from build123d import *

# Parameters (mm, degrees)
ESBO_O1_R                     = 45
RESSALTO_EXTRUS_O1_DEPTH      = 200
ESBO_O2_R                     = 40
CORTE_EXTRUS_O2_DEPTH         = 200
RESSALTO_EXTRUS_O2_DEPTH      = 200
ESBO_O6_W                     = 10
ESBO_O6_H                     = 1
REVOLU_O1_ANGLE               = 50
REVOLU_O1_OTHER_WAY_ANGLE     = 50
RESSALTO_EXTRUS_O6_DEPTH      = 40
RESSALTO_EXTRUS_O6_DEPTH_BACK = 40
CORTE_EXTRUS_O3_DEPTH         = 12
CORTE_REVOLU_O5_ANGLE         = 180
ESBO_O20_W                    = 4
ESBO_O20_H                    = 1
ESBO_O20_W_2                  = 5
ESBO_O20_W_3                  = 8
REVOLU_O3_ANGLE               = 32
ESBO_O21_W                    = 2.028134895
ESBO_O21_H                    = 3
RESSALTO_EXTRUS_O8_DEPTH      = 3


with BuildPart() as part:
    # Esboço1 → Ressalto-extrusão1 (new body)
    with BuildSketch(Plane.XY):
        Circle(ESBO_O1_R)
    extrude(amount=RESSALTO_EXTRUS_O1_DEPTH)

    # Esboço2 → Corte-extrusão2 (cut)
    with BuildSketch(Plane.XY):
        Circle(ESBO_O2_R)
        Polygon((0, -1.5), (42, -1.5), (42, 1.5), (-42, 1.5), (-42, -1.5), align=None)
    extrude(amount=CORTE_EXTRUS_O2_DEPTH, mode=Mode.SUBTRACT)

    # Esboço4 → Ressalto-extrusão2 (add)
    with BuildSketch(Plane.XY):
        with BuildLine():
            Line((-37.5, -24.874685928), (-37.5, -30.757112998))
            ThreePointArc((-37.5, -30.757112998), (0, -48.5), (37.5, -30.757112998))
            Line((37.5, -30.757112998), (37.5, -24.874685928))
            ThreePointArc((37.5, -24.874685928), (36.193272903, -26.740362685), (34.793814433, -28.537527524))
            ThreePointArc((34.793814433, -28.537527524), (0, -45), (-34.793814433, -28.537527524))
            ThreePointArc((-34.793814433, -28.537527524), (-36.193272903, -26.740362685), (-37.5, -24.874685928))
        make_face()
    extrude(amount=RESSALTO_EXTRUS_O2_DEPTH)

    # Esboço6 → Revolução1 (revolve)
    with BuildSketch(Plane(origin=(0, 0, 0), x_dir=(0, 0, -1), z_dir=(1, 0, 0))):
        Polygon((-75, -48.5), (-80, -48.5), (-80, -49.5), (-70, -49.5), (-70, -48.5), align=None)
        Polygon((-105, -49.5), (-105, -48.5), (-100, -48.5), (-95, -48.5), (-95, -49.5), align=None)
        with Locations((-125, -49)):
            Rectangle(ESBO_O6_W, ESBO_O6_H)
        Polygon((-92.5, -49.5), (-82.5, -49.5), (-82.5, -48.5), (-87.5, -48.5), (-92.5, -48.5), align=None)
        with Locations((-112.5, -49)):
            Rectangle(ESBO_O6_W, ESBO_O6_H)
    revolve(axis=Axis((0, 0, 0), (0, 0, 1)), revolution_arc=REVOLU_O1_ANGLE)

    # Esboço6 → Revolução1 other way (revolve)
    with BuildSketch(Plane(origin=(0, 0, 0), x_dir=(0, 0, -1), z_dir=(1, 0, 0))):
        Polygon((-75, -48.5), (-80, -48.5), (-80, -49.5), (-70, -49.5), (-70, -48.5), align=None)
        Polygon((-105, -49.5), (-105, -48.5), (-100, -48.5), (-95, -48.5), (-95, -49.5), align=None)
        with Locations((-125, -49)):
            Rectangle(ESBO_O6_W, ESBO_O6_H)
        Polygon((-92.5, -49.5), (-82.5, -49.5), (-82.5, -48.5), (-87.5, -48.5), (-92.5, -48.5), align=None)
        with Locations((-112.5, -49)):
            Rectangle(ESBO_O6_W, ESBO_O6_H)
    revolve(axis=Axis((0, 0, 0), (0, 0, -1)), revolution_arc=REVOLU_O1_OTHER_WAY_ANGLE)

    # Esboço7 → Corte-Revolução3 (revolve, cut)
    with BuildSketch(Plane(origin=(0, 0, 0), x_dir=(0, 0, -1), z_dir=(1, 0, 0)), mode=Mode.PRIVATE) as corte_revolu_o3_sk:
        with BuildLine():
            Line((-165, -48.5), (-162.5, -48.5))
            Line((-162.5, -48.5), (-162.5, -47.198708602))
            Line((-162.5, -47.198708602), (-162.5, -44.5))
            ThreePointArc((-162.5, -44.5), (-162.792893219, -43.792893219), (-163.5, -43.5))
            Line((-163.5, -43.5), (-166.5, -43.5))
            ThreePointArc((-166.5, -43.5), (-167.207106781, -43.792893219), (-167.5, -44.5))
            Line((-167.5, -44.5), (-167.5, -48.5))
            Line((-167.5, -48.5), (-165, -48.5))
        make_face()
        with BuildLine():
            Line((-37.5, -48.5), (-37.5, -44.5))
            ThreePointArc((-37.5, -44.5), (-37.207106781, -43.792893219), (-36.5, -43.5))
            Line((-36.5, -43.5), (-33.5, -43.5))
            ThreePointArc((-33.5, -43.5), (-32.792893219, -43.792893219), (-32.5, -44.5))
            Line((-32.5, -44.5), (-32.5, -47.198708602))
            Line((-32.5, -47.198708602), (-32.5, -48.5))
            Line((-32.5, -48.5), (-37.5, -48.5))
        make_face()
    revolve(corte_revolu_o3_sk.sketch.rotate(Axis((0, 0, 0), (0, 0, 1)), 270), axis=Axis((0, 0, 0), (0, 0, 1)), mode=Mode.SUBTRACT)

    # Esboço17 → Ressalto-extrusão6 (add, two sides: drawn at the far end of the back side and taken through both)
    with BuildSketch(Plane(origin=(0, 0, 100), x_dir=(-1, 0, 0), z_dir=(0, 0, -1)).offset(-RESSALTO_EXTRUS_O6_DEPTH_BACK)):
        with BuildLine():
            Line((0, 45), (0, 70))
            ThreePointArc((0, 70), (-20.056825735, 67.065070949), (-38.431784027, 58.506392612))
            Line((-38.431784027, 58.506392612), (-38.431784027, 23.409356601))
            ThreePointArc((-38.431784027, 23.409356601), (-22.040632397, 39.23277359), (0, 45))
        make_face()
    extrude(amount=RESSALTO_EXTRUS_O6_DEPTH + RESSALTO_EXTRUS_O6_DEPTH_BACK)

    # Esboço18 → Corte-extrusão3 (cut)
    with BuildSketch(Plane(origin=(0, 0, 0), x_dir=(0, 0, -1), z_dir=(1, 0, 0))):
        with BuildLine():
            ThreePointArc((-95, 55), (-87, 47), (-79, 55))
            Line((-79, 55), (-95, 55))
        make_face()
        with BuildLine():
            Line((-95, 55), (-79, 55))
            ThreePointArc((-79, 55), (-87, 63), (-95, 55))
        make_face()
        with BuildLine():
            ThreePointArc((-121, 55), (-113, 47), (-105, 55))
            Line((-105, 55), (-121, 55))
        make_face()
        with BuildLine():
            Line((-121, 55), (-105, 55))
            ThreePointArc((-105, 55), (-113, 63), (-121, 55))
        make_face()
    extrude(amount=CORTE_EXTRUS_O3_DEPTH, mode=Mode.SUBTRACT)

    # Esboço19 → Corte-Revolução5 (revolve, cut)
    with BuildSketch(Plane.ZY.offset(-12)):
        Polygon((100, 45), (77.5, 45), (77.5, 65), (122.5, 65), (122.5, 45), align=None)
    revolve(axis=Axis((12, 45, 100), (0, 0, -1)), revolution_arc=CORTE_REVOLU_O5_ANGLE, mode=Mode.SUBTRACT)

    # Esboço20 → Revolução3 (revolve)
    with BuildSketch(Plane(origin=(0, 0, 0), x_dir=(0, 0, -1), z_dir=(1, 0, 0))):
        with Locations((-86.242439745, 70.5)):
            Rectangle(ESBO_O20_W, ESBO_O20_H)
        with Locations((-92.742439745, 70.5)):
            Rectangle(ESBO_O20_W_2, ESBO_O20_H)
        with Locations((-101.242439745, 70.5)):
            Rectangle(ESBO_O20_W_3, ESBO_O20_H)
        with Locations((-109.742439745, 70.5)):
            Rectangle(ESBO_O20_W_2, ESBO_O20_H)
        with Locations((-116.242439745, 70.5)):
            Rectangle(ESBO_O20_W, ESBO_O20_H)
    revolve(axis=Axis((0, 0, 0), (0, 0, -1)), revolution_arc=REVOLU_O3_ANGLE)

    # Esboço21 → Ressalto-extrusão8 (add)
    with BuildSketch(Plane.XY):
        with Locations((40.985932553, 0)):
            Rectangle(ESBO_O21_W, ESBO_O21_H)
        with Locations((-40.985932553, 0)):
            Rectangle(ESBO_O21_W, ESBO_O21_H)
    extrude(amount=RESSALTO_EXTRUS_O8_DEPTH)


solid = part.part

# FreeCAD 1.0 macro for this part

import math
import FreeCAD as App
import Part
import Sketcher
from FreeCAD import Vector


def add_polygon(sketch, points):
    """Adds a closed chain of lines whose ends are joined by coincident constraints."""
    first, n = sketch.GeometryCount, len(points)
    for a, b in zip(points, points[1:] + points[:1]):
        sketch.addGeometry(Part.LineSegment(App.Vector(*a, 0), App.Vector(*b, 0)), False)
    for i in range(n):
        sketch.addConstraint(Sketcher.Constraint("Coincident", first + i, 2, first + (i + 1) % n, 1))

doc = App.newDocument("Part")
body = doc.addObject("PartDesign::Body", "Body")

sketch1 = doc.addObject("Sketcher::SketchObject", "Sketch")
body.addObject(sketch1)
sketch1.AttachmentSupport = (doc.XY_Plane, [""])
sketch1.MapMode = "FlatFace"
sketch1.addGeometry(Part.Circle(Vector(0, 0, 0), Vector(0, 0, 1), 45), False)
sketch1.addConstraint(Sketcher.Constraint("Coincident", 0, 3, -1, 1))
sketch1.addConstraint(Sketcher.Constraint("Diameter", 0, 90.0))
pad1 = doc.addObject("PartDesign::Pad", "Pad")
body.addObject(pad1)
pad1.Profile = sketch1
pad1.Length = 200

sketch2 = doc.addObject("Sketcher::SketchObject", "Sketch001")
body.addObject(sketch2)
sketch2.AttachmentSupport = (doc.XY_Plane, [""])
sketch2.MapMode = "FlatFace"
sketch2.addGeometry(Part.LineSegment(Vector(39.971865, -1.5, 0), Vector(42, -1.5, 0)), False)
sketch2.addGeometry(Part.LineSegment(Vector(42, -1.5, 0), Vector(42, 1.5, 0)), False)
sketch2.addGeometry(Part.LineSegment(Vector(42, 1.5, 0), Vector(39.971865, 1.5, 0)), False)
sketch2.addGeometry(Part.ArcOfCircle(Part.Circle(Vector(0, 0, 0), Vector(0, 0, 1), 40), math.radians(2.149096), math.radians(177.850904)), False)
sketch2.addGeometry(Part.LineSegment(Vector(-39.971865, 1.5, 0), Vector(-42, 1.5, 0)), False)
sketch2.addGeometry(Part.LineSegment(Vector(-42, 1.5, 0), Vector(-42, -1.5, 0)), False)
sketch2.addGeometry(Part.LineSegment(Vector(-42, -1.5, 0), Vector(-39.971865, -1.5, 0)), False)
sketch2.addGeometry(Part.ArcOfCircle(Part.Circle(Vector(0, 0, 0), Vector(0, 0, 1), 40), math.radians(-177.850904), math.radians(-2.149096)), False)
sketch2.addConstraint(Sketcher.Constraint("Coincident", 0, 2, 1, 1))
sketch2.addConstraint(Sketcher.Constraint("Coincident", 1, 2, 2, 1))
sketch2.addConstraint(Sketcher.Constraint("Coincident", 2, 2, 3, 1))
sketch2.addConstraint(Sketcher.Constraint("Coincident", 3, 2, 4, 1))
sketch2.addConstraint(Sketcher.Constraint("Coincident", 4, 2, 5, 1))
sketch2.addConstraint(Sketcher.Constraint("Coincident", 5, 2, 6, 1))
sketch2.addConstraint(Sketcher.Constraint("Coincident", 6, 2, 7, 1))
sketch2.addConstraint(Sketcher.Constraint("Coincident", 7, 2, 0, 1))
sketch2.addConstraint(Sketcher.Constraint("Horizontal", 0))
sketch2.addConstraint(Sketcher.Constraint("Vertical", 1))
sketch2.addConstraint(Sketcher.Constraint("Horizontal", 2))
sketch2.addConstraint(Sketcher.Constraint("Horizontal", 4))
sketch2.addConstraint(Sketcher.Constraint("Vertical", 5))
sketch2.addConstraint(Sketcher.Constraint("Horizontal", 6))
sketch2.addConstraint(Sketcher.Constraint("Coincident", 3, 3, -1, 1))
sketch2.addConstraint(Sketcher.Constraint("Coincident", 7, 3, -1, 1))
sketch2.addConstraint(Sketcher.Constraint("Equal", 3, 7))
sketch2.addConstraint(Sketcher.Constraint("Symmetric", 0, 2, 4, 2, -1, 1))
sketch2.addConstraint(Sketcher.Constraint("Horizontal", 2, 2, 3, 2))
sketch2.addConstraint(Sketcher.Constraint("Horizontal", 0, 2, 5, 2))
sketch2.addConstraint(Sketcher.Constraint("Radius", 3, 40.0))
sketch2.addConstraint(Sketcher.Constraint("DistanceY", 1, 1, 1, 2, 3.0))
sketch2.addConstraint(Sketcher.Constraint("DistanceX", -1, 1, 0, 2, 42.0))
pocket1 = doc.addObject("PartDesign::Pocket", "Pocket")
body.addObject(pocket1)
pocket1.Profile = sketch2
pocket1.Length = 200
pocket1.Reversed = True

sketch3 = doc.addObject("Sketcher::SketchObject", "Sketch002")
body.addObject(sketch3)
sketch3.AttachmentSupport = (doc.XY_Plane, [""])
sketch3.MapMode = "FlatFace"
sketch3.addGeometry(Part.LineSegment(Vector(-37.5, -24.874686, 0), Vector(-37.5, -30.757113, 0)), False)
sketch3.addGeometry(Part.ArcOfCircle(Part.Circle(Vector(0, 0, 0), Vector(0, 0, 1), 48.5), math.radians(-140.64175), math.radians(-39.35825)), False)
sketch3.addGeometry(Part.LineSegment(Vector(37.5, -30.757113, 0), Vector(37.5, -24.874686, 0)), False)
sketch3.addGeometry(Part.ArcOfCircle(Part.Circle(Vector(0, 0, 0), Vector(0, 0, 1), 45), math.radians(-39.35825), math.radians(-33.55731)), False)
sketch3.addGeometry(Part.ArcOfCircle(Part.Circle(Vector(0, 0, 0), Vector(0, 0, 1), 45), math.radians(-140.64175), math.radians(-39.35825)), False)
sketch3.addGeometry(Part.ArcOfCircle(Part.Circle(Vector(0, 0, 0), Vector(0, 0, 1), 45), math.radians(-146.44269), math.radians(-140.64175)), False)
sketch3.addConstraint(Sketcher.Constraint("Coincident", 0, 2, 1, 1))
sketch3.addConstraint(Sketcher.Constraint("Coincident", 1, 2, 2, 1))
sketch3.addConstraint(Sketcher.Constraint("Coincident", 2, 2, 3, 2))
sketch3.addConstraint(Sketcher.Constraint("Tangent", 3, 1, 4, 2))
sketch3.addConstraint(Sketcher.Constraint("Tangent", 4, 1, 5, 2))
sketch3.addConstraint(Sketcher.Constraint("Coincident", 5, 1, 0, 1))
sketch3.addConstraint(Sketcher.Constraint("Vertical", 0))
sketch3.addConstraint(Sketcher.Constraint("Vertical", 2))
sketch3.addConstraint(Sketcher.Constraint("Coincident", 1, 3, -1, 1))
sketch3.addConstraint(Sketcher.Constraint("Coincident", 3, 3, -1, 1))
sketch3.addConstraint(Sketcher.Constraint("Coincident", 5, 3, -1, 1))
sketch3.addConstraint(Sketcher.Constraint("Horizontal", 0, 2, 1, 2))
sketch3.addConstraint(Sketcher.Constraint("Horizontal", 3, 1, 4, 1))
sketch3.addConstraint(Sketcher.Constraint("Radius", 3, 45.0))
sketch3.addConstraint(Sketcher.Constraint("Radius", 1, 48.5))
sketch3.addConstraint(Sketcher.Constraint("DistanceX", 0, 2, 1, 2, 75.0))
sketch3.addConstraint(Sketcher.Constraint("DistanceY", 3, 1, 2, 2, 3.662842))
pad2 = doc.addObject("PartDesign::Pad", "Pad001")
body.addObject(pad2)
pad2.Profile = sketch3
pad2.Length = 200

sketch4 = doc.addObject("Sketcher::SketchObject", "Sketch003")
body.addObject(sketch4)
sketch4.AttachmentSupport = (doc.YZ_Plane, [""])
sketch4.MapMode = "FlatFace"
add_polygon(sketch4, [(-48.5, 80), (-49.5, 80), (-49.5, 70), (-48.5, 70)])
add_polygon(sketch4, [(-48.5, 105), (-49.5, 105), (-49.5, 95), (-48.5, 95)])
add_polygon(sketch4, [(-48.5, 130), (-49.5, 130), (-49.5, 120), (-48.5, 120)])
add_polygon(sketch4, [(-49.5, 92.5), (-49.5, 82.5), (-48.5, 82.5), (-48.5, 92.5)])
add_polygon(sketch4, [(-48.5, 117.5), (-49.5, 117.5), (-49.5, 107.5), (-48.5, 107.5)])
sketch4.addConstraint(Sketcher.Constraint("Horizontal", 0))
sketch4.addConstraint(Sketcher.Constraint("Vertical", 1))
sketch4.addConstraint(Sketcher.Constraint("Horizontal", 2))
sketch4.addConstraint(Sketcher.Constraint("Vertical", 3))
sketch4.addConstraint(Sketcher.Constraint("Horizontal", 4))
sketch4.addConstraint(Sketcher.Constraint("Vertical", 5))
sketch4.addConstraint(Sketcher.Constraint("Horizontal", 6))
sketch4.addConstraint(Sketcher.Constraint("Vertical", 7))
sketch4.addConstraint(Sketcher.Constraint("Horizontal", 8))
sketch4.addConstraint(Sketcher.Constraint("Vertical", 9))
sketch4.addConstraint(Sketcher.Constraint("Horizontal", 10))
sketch4.addConstraint(Sketcher.Constraint("Vertical", 11))
sketch4.addConstraint(Sketcher.Constraint("Vertical", 12))
sketch4.addConstraint(Sketcher.Constraint("Horizontal", 13))
sketch4.addConstraint(Sketcher.Constraint("Vertical", 14))
sketch4.addConstraint(Sketcher.Constraint("Horizontal", 15))
sketch4.addConstraint(Sketcher.Constraint("Horizontal", 16))
sketch4.addConstraint(Sketcher.Constraint("Vertical", 17))
sketch4.addConstraint(Sketcher.Constraint("Horizontal", 18))
sketch4.addConstraint(Sketcher.Constraint("Vertical", 19))
sketch4.addConstraint(Sketcher.Constraint("Vertical", 1, 2, 4, 2))
sketch4.addConstraint(Sketcher.Constraint("Vertical", 3, 2, 6, 2))
sketch4.addConstraint(Sketcher.Constraint("Vertical", 5, 2, 8, 2))
sketch4.addConstraint(Sketcher.Constraint("Vertical", 7, 2, 10, 2))
sketch4.addConstraint(Sketcher.Constraint("Vertical", 9, 2, 12, 2))
sketch4.addConstraint(Sketcher.Constraint("Vertical", 11, 2, 13, 2))
sketch4.addConstraint(Sketcher.Constraint("Vertical", 15, 2, 16, 2))
sketch4.addConstraint(Sketcher.Constraint("Vertical", 14, 2, 18, 2))
sketch4.addConstraint(Sketcher.Constraint("Equal", 3, 5))
sketch4.addConstraint(Sketcher.Constraint("Equal", 7, 9))
sketch4.addConstraint(Sketcher.Constraint("Equal", 11, 12))
sketch4.addConstraint(Sketcher.Constraint("Equal", 14, 17))
sketch4.addConstraint(Sketcher.Constraint("DistanceX", 0, 2, 0, 1, 1.0))
sketch4.addConstraint(Sketcher.Constraint("DistanceY", 1, 2, 1, 1, 10.0))
sketch4.addConstraint(Sketcher.Constraint("DistanceY", -1, 1, 0, 2, 80.0))
sketch4.addConstraint(Sketcher.Constraint("DistanceY", -1, 1, 4, 2, 105.0))
sketch4.addConstraint(Sketcher.Constraint("DistanceY", -1, 1, 8, 2, 130.0))
sketch4.addConstraint(Sketcher.Constraint("DistanceX", 0, 2, -1, 1, 49.5))
sketch4.addConstraint(Sketcher.Constraint("DistanceY", -1, 1, 12, 2, 82.5))
sketch4.addConstraint(Sketcher.Constraint("DistanceY", -1, 1, 16, 2, 117.5))
revolution = doc.addObject("PartDesign::Revolution", "Revolution")
body.addObject(revolution)
revolution.Profile = sketch4
revolution.ReferenceAxis = (sketch4, ["V_Axis"])
revolution.Angle = 50

sketch5 = doc.addObject("Sketcher::SketchObject", "Sketch004")
body.addObject(sketch5)
sketch5.AttachmentSupport = (doc.YZ_Plane, [""])
sketch5.MapMode = "FlatFace"
add_polygon(sketch5, [(-48.5, 80), (-49.5, 80), (-49.5, 70), (-48.5, 70)])
add_polygon(sketch5, [(-48.5, 105), (-49.5, 105), (-49.5, 95), (-48.5, 95)])
add_polygon(sketch5, [(-48.5, 130), (-49.5, 130), (-49.5, 120), (-48.5, 120)])
add_polygon(sketch5, [(-49.5, 92.5), (-49.5, 82.5), (-48.5, 82.5), (-48.5, 92.5)])
add_polygon(sketch5, [(-48.5, 117.5), (-49.5, 117.5), (-49.5, 107.5), (-48.5, 107.5)])
sketch5.addConstraint(Sketcher.Constraint("Horizontal", 0))
sketch5.addConstraint(Sketcher.Constraint("Vertical", 1))
sketch5.addConstraint(Sketcher.Constraint("Horizontal", 2))
sketch5.addConstraint(Sketcher.Constraint("Vertical", 3))
sketch5.addConstraint(Sketcher.Constraint("Horizontal", 4))
sketch5.addConstraint(Sketcher.Constraint("Vertical", 5))
sketch5.addConstraint(Sketcher.Constraint("Horizontal", 6))
sketch5.addConstraint(Sketcher.Constraint("Vertical", 7))
sketch5.addConstraint(Sketcher.Constraint("Horizontal", 8))
sketch5.addConstraint(Sketcher.Constraint("Vertical", 9))
sketch5.addConstraint(Sketcher.Constraint("Horizontal", 10))
sketch5.addConstraint(Sketcher.Constraint("Vertical", 11))
sketch5.addConstraint(Sketcher.Constraint("Vertical", 12))
sketch5.addConstraint(Sketcher.Constraint("Horizontal", 13))
sketch5.addConstraint(Sketcher.Constraint("Vertical", 14))
sketch5.addConstraint(Sketcher.Constraint("Horizontal", 15))
sketch5.addConstraint(Sketcher.Constraint("Horizontal", 16))
sketch5.addConstraint(Sketcher.Constraint("Vertical", 17))
sketch5.addConstraint(Sketcher.Constraint("Horizontal", 18))
sketch5.addConstraint(Sketcher.Constraint("Vertical", 19))
sketch5.addConstraint(Sketcher.Constraint("Vertical", 1, 2, 4, 2))
sketch5.addConstraint(Sketcher.Constraint("Vertical", 3, 2, 6, 2))
sketch5.addConstraint(Sketcher.Constraint("Vertical", 5, 2, 8, 2))
sketch5.addConstraint(Sketcher.Constraint("Vertical", 7, 2, 10, 2))
sketch5.addConstraint(Sketcher.Constraint("Vertical", 9, 2, 12, 2))
sketch5.addConstraint(Sketcher.Constraint("Vertical", 11, 2, 13, 2))
sketch5.addConstraint(Sketcher.Constraint("Vertical", 15, 2, 16, 2))
sketch5.addConstraint(Sketcher.Constraint("Vertical", 14, 2, 18, 2))
sketch5.addConstraint(Sketcher.Constraint("Equal", 3, 5))
sketch5.addConstraint(Sketcher.Constraint("Equal", 7, 9))
sketch5.addConstraint(Sketcher.Constraint("Equal", 11, 12))
sketch5.addConstraint(Sketcher.Constraint("Equal", 14, 17))
sketch5.addConstraint(Sketcher.Constraint("DistanceX", 0, 2, 0, 1, 1.0))
sketch5.addConstraint(Sketcher.Constraint("DistanceY", 1, 2, 1, 1, 10.0))
sketch5.addConstraint(Sketcher.Constraint("DistanceY", -1, 1, 0, 2, 80.0))
sketch5.addConstraint(Sketcher.Constraint("DistanceY", -1, 1, 4, 2, 105.0))
sketch5.addConstraint(Sketcher.Constraint("DistanceY", -1, 1, 8, 2, 130.0))
sketch5.addConstraint(Sketcher.Constraint("DistanceX", 0, 2, -1, 1, 49.5))
sketch5.addConstraint(Sketcher.Constraint("DistanceY", -1, 1, 12, 2, 82.5))
sketch5.addConstraint(Sketcher.Constraint("DistanceY", -1, 1, 16, 2, 117.5))
revolution2 = doc.addObject("PartDesign::Revolution", "Revolution001")
body.addObject(revolution2)
revolution2.Profile = sketch5
revolution2.ReferenceAxis = (sketch5, ["V_Axis"])
revolution2.Angle = 50
revolution2.Reversed = True

sketch6 = doc.addObject("Sketcher::SketchObject", "Sketch005")
body.addObject(sketch6)
sketch6.AttachmentSupport = (doc.YZ_Plane, [""])
sketch6.MapMode = "FlatFace"
sketch6.addGeometry(Part.LineSegment(Vector(-48.5, 162.5, 0), Vector(-44.5, 162.5, 0)), False)
sketch6.addGeometry(Part.ArcOfCircle(Part.Circle(Vector(-44.5, 163.5, 0), Vector(0, 0, 1), 1), math.radians(-90), math.radians(0)), False)
sketch6.addGeometry(Part.LineSegment(Vector(-43.5, 163.5, 0), Vector(-43.5, 166.5, 0)), False)
sketch6.addGeometry(Part.ArcOfCircle(Part.Circle(Vector(-44.5, 166.5, 0), Vector(0, 0, 1), 1), math.radians(0), math.radians(90)), False)
sketch6.addGeometry(Part.LineSegment(Vector(-44.5, 167.5, 0), Vector(-48.5, 167.5, 0)), False)
sketch6.addGeometry(Part.LineSegment(Vector(-48.5, 167.5, 0), Vector(-48.5, 162.5, 0)), False)
sketch6.addGeometry(Part.LineSegment(Vector(-44.5, 37.5, 0), Vector(-48.5, 37.5, 0)), False)
sketch6.addGeometry(Part.LineSegment(Vector(-48.5, 37.5, 0), Vector(-48.5, 32.5, 0)), False)
sketch6.addGeometry(Part.LineSegment(Vector(-48.5, 32.5, 0), Vector(-44.5, 32.5, 0)), False)
sketch6.addGeometry(Part.ArcOfCircle(Part.Circle(Vector(-44.5, 33.5, 0), Vector(0, 0, 1), 1), math.radians(-90), math.radians(0)), False)
sketch6.addGeometry(Part.LineSegment(Vector(-43.5, 33.5, 0), Vector(-43.5, 36.5, 0)), False)
sketch6.addGeometry(Part.ArcOfCircle(Part.Circle(Vector(-44.5, 36.5, 0), Vector(0, 0, 1), 1), math.radians(0), math.radians(90)), False)
sketch6.addConstraint(Sketcher.Constraint("Tangent", 0, 2, 1, 1))
sketch6.addConstraint(Sketcher.Constraint("Tangent", 1, 2, 2, 1))
sketch6.addConstraint(Sketcher.Constraint("Tangent", 2, 2, 3, 1))
sketch6.addConstraint(Sketcher.Constraint("Tangent", 3, 2, 4, 1))
sketch6.addConstraint(Sketcher.Constraint("Coincident", 4, 2, 5, 1))
sketch6.addConstraint(Sketcher.Constraint("Coincident", 5, 2, 0, 1))
sketch6.addConstraint(Sketcher.Constraint("Coincident", 6, 2, 7, 1))
sketch6.addConstraint(Sketcher.Constraint("Coincident", 7, 2, 8, 1))
sketch6.addConstraint(Sketcher.Constraint("Tangent", 8, 2, 9, 1))
sketch6.addConstraint(Sketcher.Constraint("Tangent", 9, 2, 10, 1))
sketch6.addConstraint(Sketcher.Constraint("Tangent", 10, 2, 11, 1))
sketch6.addConstraint(Sketcher.Constraint("Tangent", 11, 2, 6, 1))
sketch6.addConstraint(Sketcher.Constraint("Horizontal", 0))
sketch6.addConstraint(Sketcher.Constraint("Vertical", 2))
sketch6.addConstraint(Sketcher.Constraint("Horizontal", 4))
sketch6.addConstraint(Sketcher.Constraint("Vertical", 5))
sketch6.addConstraint(Sketcher.Constraint("Horizontal", 6))
sketch6.addConstraint(Sketcher.Constraint("Vertical", 7))
sketch6.addConstraint(Sketcher.Constraint("Horizontal", 8))
sketch6.addConstraint(Sketcher.Constraint("Vertical", 10))
sketch6.addConstraint(Sketcher.Constraint("Equal", 1, 3))
sketch6.addConstraint(Sketcher.Constraint("Equal", 3, 9))
sketch6.addConstraint(Sketcher.Constraint("Equal", 9, 11))
sketch6.addConstraint(Sketcher.Constraint("Vertical", 3, 3, 9, 3))
sketch6.addConstraint(Sketcher.Constraint("Vertical", 5, 2, 6, 2))
sketch6.addConstraint(Sketcher.Constraint("Equal", 5, 7))
sketch6.addConstraint(Sketcher.Constraint("Radius", 1, 1.0))
sketch6.addConstraint(Sketcher.Constraint("DistanceX", 0, 1, 0, 2, 4.0))
sketch6.addConstraint(Sketcher.Constraint("DistanceY", 2, 1, 2, 2, 3.0))
sketch6.addConstraint(Sketcher.Constraint("DistanceY", 9, 3, 1, 3, 130.0))
sketch6.addConstraint(Sketcher.Constraint("DistanceX", 1, 3, -1, 1, 44.5))
sketch6.addConstraint(Sketcher.Constraint("DistanceY", -1, 1, 1, 3, 163.5))
groove = doc.addObject("PartDesign::Groove", "Groove")
body.addObject(groove)
groove.Profile = sketch6
groove.ReferenceAxis = (sketch6, ["V_Axis"])
groove.Angle = 360

sketch7 = doc.addObject("Sketcher::SketchObject", "Sketch006")
body.addObject(sketch7)
sketch7.AttachmentSupport = (doc.XY_Plane, [""])
sketch7.MapMode = "FlatFace"
sketch7.AttachmentOffset = App.Placement(Vector(0, 0, 100), App.Rotation())
sketch7.addGeometry(Part.LineSegment(Vector(0, 45, 0), Vector(0, 70, 0)), False)
sketch7.addGeometry(Part.ArcOfCircle(Part.Circle(Vector(0, 0, 0), Vector(0, 0, 1), 70), math.radians(56.699817), math.radians(90)), False)
sketch7.addGeometry(Part.LineSegment(Vector(38.431784, 58.506393, 0), Vector(38.431784, 23.409357, 0)), False)
sketch7.addGeometry(Part.ArcOfCircle(Part.Circle(Vector(0, 0, 0), Vector(0, 0, 1), 45), math.radians(31.3462), math.radians(90)), False)
sketch7.addConstraint(Sketcher.Constraint("Coincident", 0, 2, 1, 2))
sketch7.addConstraint(Sketcher.Constraint("Coincident", 1, 1, 2, 1))
sketch7.addConstraint(Sketcher.Constraint("Coincident", 2, 2, 3, 1))
sketch7.addConstraint(Sketcher.Constraint("Coincident", 3, 2, 0, 1))
sketch7.addConstraint(Sketcher.Constraint("Vertical", 0))
sketch7.addConstraint(Sketcher.Constraint("Vertical", 2))
sketch7.addConstraint(Sketcher.Constraint("Coincident", 1, 3, -1, 1))
sketch7.addConstraint(Sketcher.Constraint("Coincident", 3, 3, -1, 1))
sketch7.addConstraint(Sketcher.Constraint("PointOnObject", 0, 2, -2))
sketch7.addConstraint(Sketcher.Constraint("Radius", 1, 70.0))
sketch7.addConstraint(Sketcher.Constraint("Radius", 3, 45.0))
sketch7.addConstraint(Sketcher.Constraint("DistanceY", 2, 2, 2, 1, 35.097036))
pad3 = doc.addObject("PartDesign::Pad", "Pad002")
body.addObject(pad3)
pad3.Profile = sketch7
pad3.Type = "TwoLengths"
pad3.Length = 40
pad3.Length2 = 40
pad3.Reversed = True

sketch8 = doc.addObject("Sketcher::SketchObject", "Sketch007")
body.addObject(sketch8)
sketch8.AttachmentSupport = (doc.YZ_Plane, [""])
sketch8.MapMode = "FlatFace"
sketch8.addGeometry(Part.Circle(Vector(55, 87, 0), Vector(0, 0, 1), 8), False)
sketch8.addGeometry(Part.Circle(Vector(55, 113, 0), Vector(0, 0, 1), 8), False)
sketch8.addConstraint(Sketcher.Constraint("Equal", 0, 1))
sketch8.addConstraint(Sketcher.Constraint("Vertical", 0, 3, 1, 3))
sketch8.addConstraint(Sketcher.Constraint("Diameter", 0, 16.0))
sketch8.addConstraint(Sketcher.Constraint("DistanceX", -1, 1, 0, 3, 55.0))
sketch8.addConstraint(Sketcher.Constraint("DistanceY", -1, 1, 0, 3, 87.0))
sketch8.addConstraint(Sketcher.Constraint("DistanceY", -1, 1, 1, 3, 113.0))
pocket2 = doc.addObject("PartDesign::Pocket", "Pocket001")
body.addObject(pocket2)
pocket2.Profile = sketch8
pocket2.Length = 12
pocket2.Reversed = True

sketch9 = doc.addObject("Sketcher::SketchObject", "Sketch008")
body.addObject(sketch9)
sketch9.AttachmentSupport = (doc.YZ_Plane, [""])
sketch9.MapMode = "FlatFace"
sketch9.AttachmentOffset = App.Placement(Vector(0, 0, 12), App.Rotation())
add_polygon(sketch9, [(45, 77.5), (45, 122.5), (65, 122.5), (65, 77.5)])
sketch9.addGeometry(Part.LineSegment(Vector(45, 122.5, 0), Vector(45, 77.5, 0)), True)
sketch9.addConstraint(Sketcher.Constraint("Vertical", 0))
sketch9.addConstraint(Sketcher.Constraint("Horizontal", 1))
sketch9.addConstraint(Sketcher.Constraint("Vertical", 2))
sketch9.addConstraint(Sketcher.Constraint("Horizontal", 3))
sketch9.addConstraint(Sketcher.Constraint("Vertical", 4))
sketch9.addConstraint(Sketcher.Constraint("Coincident", 4, 1, 0, 2))
sketch9.addConstraint(Sketcher.Constraint("Horizontal", 2, 2, 4, 2))
sketch9.addConstraint(Sketcher.Constraint("DistanceX", 1, 1, 1, 2, 20.0))
sketch9.addConstraint(Sketcher.Constraint("DistanceY", 0, 1, 0, 2, 45.0))
sketch9.addConstraint(Sketcher.Constraint("DistanceX", -1, 1, 0, 2, 45.0))
sketch9.addConstraint(Sketcher.Constraint("DistanceY", -1, 1, 0, 2, 122.5))
groove2 = doc.addObject("PartDesign::Groove", "Groove001")
body.addObject(groove2)
groove2.Profile = sketch9
groove2.ReferenceAxis = (sketch9, ["Axis0"])
groove2.Angle = 180

sketch10 = doc.addObject("Sketcher::SketchObject", "Sketch009")
body.addObject(sketch10)
sketch10.AttachmentSupport = (doc.YZ_Plane, [""])
sketch10.MapMode = "FlatFace"
add_polygon(sketch10, [(71, 88.24244), (70, 88.24244), (70, 84.24244), (71, 84.24244)])
add_polygon(sketch10, [(71, 95.24244), (70, 95.24244), (70, 90.24244), (71, 90.24244)])
add_polygon(sketch10, [(71, 105.24244), (70, 105.24244), (70, 97.24244), (71, 97.24244)])
add_polygon(sketch10, [(71, 112.24244), (70, 112.24244), (70, 107.24244), (71, 107.24244)])
add_polygon(sketch10, [(71, 118.24244), (70, 118.24244), (70, 114.24244), (71, 114.24244)])
sketch10.addConstraint(Sketcher.Constraint("Horizontal", 0))
sketch10.addConstraint(Sketcher.Constraint("Vertical", 1))
sketch10.addConstraint(Sketcher.Constraint("Horizontal", 2))
sketch10.addConstraint(Sketcher.Constraint("Vertical", 3))
sketch10.addConstraint(Sketcher.Constraint("Horizontal", 4))
sketch10.addConstraint(Sketcher.Constraint("Vertical", 5))
sketch10.addConstraint(Sketcher.Constraint("Horizontal", 6))
sketch10.addConstraint(Sketcher.Constraint("Vertical", 7))
sketch10.addConstraint(Sketcher.Constraint("Horizontal", 8))
sketch10.addConstraint(Sketcher.Constraint("Vertical", 9))
sketch10.addConstraint(Sketcher.Constraint("Horizontal", 10))
sketch10.addConstraint(Sketcher.Constraint("Vertical", 11))
sketch10.addConstraint(Sketcher.Constraint("Horizontal", 12))
sketch10.addConstraint(Sketcher.Constraint("Vertical", 13))
sketch10.addConstraint(Sketcher.Constraint("Horizontal", 14))
sketch10.addConstraint(Sketcher.Constraint("Vertical", 15))
sketch10.addConstraint(Sketcher.Constraint("Horizontal", 16))
sketch10.addConstraint(Sketcher.Constraint("Vertical", 17))
sketch10.addConstraint(Sketcher.Constraint("Horizontal", 18))
sketch10.addConstraint(Sketcher.Constraint("Vertical", 19))
sketch10.addConstraint(Sketcher.Constraint("Vertical", 1, 2, 4, 2))
sketch10.addConstraint(Sketcher.Constraint("Vertical", 3, 2, 6, 2))
sketch10.addConstraint(Sketcher.Constraint("Vertical", 5, 2, 8, 2))
sketch10.addConstraint(Sketcher.Constraint("Vertical", 7, 2, 10, 2))
sketch10.addConstraint(Sketcher.Constraint("Vertical", 9, 2, 12, 2))
sketch10.addConstraint(Sketcher.Constraint("Vertical", 11, 2, 14, 2))
sketch10.addConstraint(Sketcher.Constraint("Vertical", 13, 2, 16, 2))
sketch10.addConstraint(Sketcher.Constraint("Vertical", 15, 2, 18, 2))
sketch10.addConstraint(Sketcher.Constraint("Equal", 7, 13))
sketch10.addConstraint(Sketcher.Constraint("Equal", 3, 17))
sketch10.addConstraint(Sketcher.Constraint("DistanceX", 0, 2, 0, 1, 1.0))
sketch10.addConstraint(Sketcher.Constraint("DistanceY", 1, 2, 1, 1, 4.0))
sketch10.addConstraint(Sketcher.Constraint("DistanceY", 5, 2, 5, 1, 5.0))
sketch10.addConstraint(Sketcher.Constraint("DistanceY", 9, 2, 9, 1, 8.0))
sketch10.addConstraint(Sketcher.Constraint("DistanceX", -1, 1, 0, 2, 70.0))
sketch10.addConstraint(Sketcher.Constraint("DistanceY", 0, 2, 4, 2, 7.0))
sketch10.addConstraint(Sketcher.Constraint("DistanceY", 4, 2, 8, 2, 10.0))
sketch10.addConstraint(Sketcher.Constraint("DistanceY", 8, 2, 12, 2, 7.0))
sketch10.addConstraint(Sketcher.Constraint("DistanceY", 12, 2, 16, 2, 6.0))
sketch10.addConstraint(Sketcher.Constraint("DistanceY", -1, 1, 0, 2, 88.24244))
revolution3 = doc.addObject("PartDesign::Revolution", "Revolution002")
body.addObject(revolution3)
revolution3.Profile = sketch10
revolution3.ReferenceAxis = (sketch10, ["V_Axis"])
revolution3.Angle = 32
revolution3.Reversed = True

sketch11 = doc.addObject("Sketcher::SketchObject", "Sketch010")
body.addObject(sketch11)
sketch11.AttachmentSupport = (doc.XY_Plane, [""])
sketch11.MapMode = "FlatFace"
add_polygon(sketch11, [(39.971865, 1.5), (39.971865, -1.5), (42, -1.5), (42, 1.5)])
add_polygon(sketch11, [(-42, 1.5), (-42, -1.5), (-39.971865, -1.5), (-39.971865, 1.5)])
sketch11.addConstraint(Sketcher.Constraint("Vertical", 0))
sketch11.addConstraint(Sketcher.Constraint("Horizontal", 1))
sketch11.addConstraint(Sketcher.Constraint("Vertical", 2))
sketch11.addConstraint(Sketcher.Constraint("Horizontal", 3))
sketch11.addConstraint(Sketcher.Constraint("Vertical", 4))
sketch11.addConstraint(Sketcher.Constraint("Horizontal", 5))
sketch11.addConstraint(Sketcher.Constraint("Vertical", 6))
sketch11.addConstraint(Sketcher.Constraint("Horizontal", 7))
sketch11.addConstraint(Sketcher.Constraint("Symmetric", 2, 2, 4, 2, -1, 1))
sketch11.addConstraint(Sketcher.Constraint("Symmetric", 0, 2, 6, 2, -1, 1))
sketch11.addConstraint(Sketcher.Constraint("Horizontal", 1, 2, 4, 2))
sketch11.addConstraint(Sketcher.Constraint("DistanceY", 0, 2, 0, 1, 3.0))
sketch11.addConstraint(Sketcher.Constraint("DistanceX", -1, 1, 1, 2, 42.0))
sketch11.addConstraint(Sketcher.Constraint("DistanceX", 1, 1, 1, 2, 2.028135))
pad4 = doc.addObject("PartDesign::Pad", "Pad003")
body.addObject(pad4)
pad4.Profile = sketch11
pad4.Length = 3

doc.recompute()
